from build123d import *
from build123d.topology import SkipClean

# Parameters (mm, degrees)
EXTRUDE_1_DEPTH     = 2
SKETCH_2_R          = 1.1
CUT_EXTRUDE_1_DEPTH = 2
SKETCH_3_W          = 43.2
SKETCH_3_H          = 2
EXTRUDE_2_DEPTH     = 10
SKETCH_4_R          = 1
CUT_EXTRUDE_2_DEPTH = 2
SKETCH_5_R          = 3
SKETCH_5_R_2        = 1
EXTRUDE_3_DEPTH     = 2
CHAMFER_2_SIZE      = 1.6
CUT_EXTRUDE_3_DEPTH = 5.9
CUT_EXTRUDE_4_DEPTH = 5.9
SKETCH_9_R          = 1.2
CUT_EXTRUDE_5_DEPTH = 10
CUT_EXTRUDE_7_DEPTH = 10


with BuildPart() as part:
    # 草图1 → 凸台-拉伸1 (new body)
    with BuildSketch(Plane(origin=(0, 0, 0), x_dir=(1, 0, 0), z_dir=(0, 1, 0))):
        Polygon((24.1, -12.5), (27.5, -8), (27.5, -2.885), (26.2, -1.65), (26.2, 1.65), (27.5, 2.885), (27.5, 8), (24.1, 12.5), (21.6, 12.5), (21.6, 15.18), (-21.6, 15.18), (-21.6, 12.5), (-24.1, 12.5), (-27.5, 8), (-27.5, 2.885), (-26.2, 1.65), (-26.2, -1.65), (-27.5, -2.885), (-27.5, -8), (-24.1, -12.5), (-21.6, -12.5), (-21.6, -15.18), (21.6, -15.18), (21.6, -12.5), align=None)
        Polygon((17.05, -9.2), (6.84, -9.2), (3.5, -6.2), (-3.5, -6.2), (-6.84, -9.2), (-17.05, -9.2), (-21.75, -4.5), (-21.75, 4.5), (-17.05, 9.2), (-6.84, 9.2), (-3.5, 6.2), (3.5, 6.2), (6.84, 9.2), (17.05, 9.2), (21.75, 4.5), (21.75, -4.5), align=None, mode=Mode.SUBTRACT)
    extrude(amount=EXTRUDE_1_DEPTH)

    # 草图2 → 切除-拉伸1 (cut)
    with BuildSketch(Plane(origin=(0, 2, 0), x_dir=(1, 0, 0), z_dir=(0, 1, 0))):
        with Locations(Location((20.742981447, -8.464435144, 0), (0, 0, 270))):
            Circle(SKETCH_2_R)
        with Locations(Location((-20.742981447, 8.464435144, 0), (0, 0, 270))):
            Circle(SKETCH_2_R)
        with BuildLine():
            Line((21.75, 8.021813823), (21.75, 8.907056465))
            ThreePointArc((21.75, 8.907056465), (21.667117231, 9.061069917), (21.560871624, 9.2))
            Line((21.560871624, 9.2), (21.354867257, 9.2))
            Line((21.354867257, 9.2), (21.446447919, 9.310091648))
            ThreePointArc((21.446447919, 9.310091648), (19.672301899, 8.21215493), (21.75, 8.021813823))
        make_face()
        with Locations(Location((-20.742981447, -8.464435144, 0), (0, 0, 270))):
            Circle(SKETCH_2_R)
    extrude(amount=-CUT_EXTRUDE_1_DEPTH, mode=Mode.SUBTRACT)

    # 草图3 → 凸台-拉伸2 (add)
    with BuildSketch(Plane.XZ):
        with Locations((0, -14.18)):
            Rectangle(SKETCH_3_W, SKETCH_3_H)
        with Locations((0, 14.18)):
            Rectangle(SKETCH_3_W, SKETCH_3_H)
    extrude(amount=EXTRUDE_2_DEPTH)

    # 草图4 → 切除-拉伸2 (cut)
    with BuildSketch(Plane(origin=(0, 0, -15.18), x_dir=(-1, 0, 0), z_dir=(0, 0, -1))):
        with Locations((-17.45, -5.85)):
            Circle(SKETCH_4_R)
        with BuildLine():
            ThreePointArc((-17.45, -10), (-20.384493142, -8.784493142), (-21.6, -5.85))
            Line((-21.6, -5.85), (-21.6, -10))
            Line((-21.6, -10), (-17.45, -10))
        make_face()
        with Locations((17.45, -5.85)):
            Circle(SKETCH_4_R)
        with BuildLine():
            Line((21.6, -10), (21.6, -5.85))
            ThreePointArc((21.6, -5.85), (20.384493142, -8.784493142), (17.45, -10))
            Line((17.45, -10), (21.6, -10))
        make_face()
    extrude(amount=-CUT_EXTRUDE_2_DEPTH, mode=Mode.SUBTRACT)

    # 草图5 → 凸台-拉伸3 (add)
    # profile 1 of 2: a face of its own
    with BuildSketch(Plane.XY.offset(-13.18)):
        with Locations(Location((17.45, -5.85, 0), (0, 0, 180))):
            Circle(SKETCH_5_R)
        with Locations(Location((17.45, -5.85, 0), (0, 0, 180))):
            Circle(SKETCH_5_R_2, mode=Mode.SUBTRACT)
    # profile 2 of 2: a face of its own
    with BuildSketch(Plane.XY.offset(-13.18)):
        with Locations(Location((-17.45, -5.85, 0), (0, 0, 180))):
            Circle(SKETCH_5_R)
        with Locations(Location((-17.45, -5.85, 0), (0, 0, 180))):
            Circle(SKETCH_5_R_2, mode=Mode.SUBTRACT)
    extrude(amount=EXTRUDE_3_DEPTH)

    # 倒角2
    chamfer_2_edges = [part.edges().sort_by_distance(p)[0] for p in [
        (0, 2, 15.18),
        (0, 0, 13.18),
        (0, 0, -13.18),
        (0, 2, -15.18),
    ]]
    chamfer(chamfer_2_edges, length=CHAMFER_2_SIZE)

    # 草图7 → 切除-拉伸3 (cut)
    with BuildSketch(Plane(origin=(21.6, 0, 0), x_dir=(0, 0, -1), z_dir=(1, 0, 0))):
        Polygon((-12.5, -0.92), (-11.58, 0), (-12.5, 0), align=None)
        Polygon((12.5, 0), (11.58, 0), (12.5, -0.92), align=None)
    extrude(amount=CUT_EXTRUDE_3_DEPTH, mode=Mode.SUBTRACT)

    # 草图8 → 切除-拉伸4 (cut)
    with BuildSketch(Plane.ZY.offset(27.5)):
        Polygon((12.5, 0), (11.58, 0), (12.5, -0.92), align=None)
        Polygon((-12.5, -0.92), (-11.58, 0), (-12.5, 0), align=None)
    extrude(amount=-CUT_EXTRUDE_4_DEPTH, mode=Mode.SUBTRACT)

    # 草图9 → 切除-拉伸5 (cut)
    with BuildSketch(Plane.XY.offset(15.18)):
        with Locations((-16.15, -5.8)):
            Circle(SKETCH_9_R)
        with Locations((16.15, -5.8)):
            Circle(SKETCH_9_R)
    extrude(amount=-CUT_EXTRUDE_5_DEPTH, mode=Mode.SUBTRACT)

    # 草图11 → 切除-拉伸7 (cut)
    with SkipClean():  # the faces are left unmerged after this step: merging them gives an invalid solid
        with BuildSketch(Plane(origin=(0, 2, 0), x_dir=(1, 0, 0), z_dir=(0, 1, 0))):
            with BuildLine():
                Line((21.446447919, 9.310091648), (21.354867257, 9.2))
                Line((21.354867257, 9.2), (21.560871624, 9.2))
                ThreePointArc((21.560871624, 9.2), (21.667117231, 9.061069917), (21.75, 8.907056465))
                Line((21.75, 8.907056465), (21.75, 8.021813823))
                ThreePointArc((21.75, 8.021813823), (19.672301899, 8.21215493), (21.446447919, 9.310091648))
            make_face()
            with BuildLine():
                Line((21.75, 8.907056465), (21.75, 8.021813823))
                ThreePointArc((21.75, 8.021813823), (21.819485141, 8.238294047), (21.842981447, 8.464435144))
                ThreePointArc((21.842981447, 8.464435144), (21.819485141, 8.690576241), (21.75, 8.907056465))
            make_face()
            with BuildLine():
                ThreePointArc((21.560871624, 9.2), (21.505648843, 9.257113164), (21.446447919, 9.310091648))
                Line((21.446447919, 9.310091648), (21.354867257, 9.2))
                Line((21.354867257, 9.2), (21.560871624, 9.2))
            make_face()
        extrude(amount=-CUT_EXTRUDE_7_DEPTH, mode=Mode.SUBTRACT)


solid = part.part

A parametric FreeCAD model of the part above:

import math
import FreeCAD as App
import Part
import Sketcher

V = App.Vector


def edges_at(feature, points):
    """Names of the edges that pass closest to the given points."""
    edges = feature.Shape.Edges
    near = lambda p: min(range(len(edges)), key=lambda i: edges[i].distToShape(Part.Vertex(*p))[0])
    return sorted({f"Edge{near(p) + 1}" for p in points})

doc = App.newDocument("Part")
body = doc.addObject("PartDesign::Body", "Body")

# Sketch on XZ plane
sketch1 = doc.addObject("Sketcher::SketchObject", "Sketch")
body.addObject(sketch1)
sketch1.AttachmentSupport = (doc.XZ_Plane, [""])
sketch1.MapMode = "FlatFace"
sketch1.addGeometry([
    Part.LineSegment(V(24.1, 12.5, 0), V(27.5, 8, 0)),  # 0
    Part.LineSegment(V(27.5, 8, 0), V(27.5, 2.9, 0)),  # 1
    Part.LineSegment(V(27.5, 2.9, 0), V(26.2, 1.6, 0)),  # 2
    Part.LineSegment(V(26.2, 1.6, 0), V(26.2, -1.6, 0)),  # 3
    Part.LineSegment(V(26.2, -1.6, 0), V(27.5, -2.9, 0)),  # 4
    Part.LineSegment(V(27.5, -2.9, 0), V(27.5, -8, 0)),  # 5
    Part.LineSegment(V(27.5, -8, 0), V(24.1, -12.5, 0)),  # 6
    Part.LineSegment(V(24.1, -12.5, 0), V(21.6, -12.5, 0)),  # 7
    Part.LineSegment(V(21.6, -12.5, 0), V(21.6, -15.2, 0)),  # 8
    Part.LineSegment(V(21.6, -15.2, 0), V(-21.6, -15.2, 0)),  # 9
    Part.LineSegment(V(-21.6, -15.2, 0), V(-21.6, -12.5, 0)),  # 10
    Part.LineSegment(V(-21.6, -12.5, 0), V(-24.1, -12.5, 0)),  # 11
    Part.LineSegment(V(-24.1, -12.5, 0), V(-27.5, -8, 0)),  # 12
    Part.LineSegment(V(-27.5, -8, 0), V(-27.5, -2.9, 0)),  # 13
    Part.LineSegment(V(-27.5, -2.9, 0), V(-26.2, -1.6, 0)),  # 14
    Part.LineSegment(V(-26.2, -1.6, 0), V(-26.2, 1.6, 0)),  # 15
    Part.LineSegment(V(-26.2, 1.6, 0), V(-27.5, 2.9, 0)),  # 16
    Part.LineSegment(V(-27.5, 2.9, 0), V(-27.5, 8, 0)),  # 17
    Part.LineSegment(V(-27.5, 8, 0), V(-24.1, 12.5, 0)),  # 18
    Part.LineSegment(V(-24.1, 12.5, 0), V(-21.6, 12.5, 0)),  # 19
    Part.LineSegment(V(-21.6, 12.5, 0), V(-21.6, 15.2, 0)),  # 20
    Part.LineSegment(V(-21.6, 15.2, 0), V(21.6, 15.2, 0)),  # 21
    Part.LineSegment(V(21.6, 15.2, 0), V(21.6, 12.5, 0)),  # 22
    Part.LineSegment(V(21.6, 12.5, 0), V(24.1, 12.5, 0)),  # 23
    Part.LineSegment(V(21.8, 4.5, 0), V(17.1, 9.2, 0)),  # 24
    Part.LineSegment(V(17.1, 9.2, 0), V(6.8, 9.2, 0)),  # 25
    Part.LineSegment(V(6.8, 9.2, 0), V(3.5, 6.2, 0)),  # 26
    Part.LineSegment(V(3.5, 6.2, 0), V(-3.5, 6.2, 0)),  # 27
    Part.LineSegment(V(-3.5, 6.2, 0), V(-6.8, 9.2, 0)),  # 28
    Part.LineSegment(V(-6.8, 9.2, 0), V(-17.1, 9.2, 0)),  # 29
    Part.LineSegment(V(-17.1, 9.2, 0), V(-21.8, 4.5, 0)),  # 30
    Part.LineSegment(V(-21.8, 4.5, 0), V(-21.8, -4.5, 0)),  # 31
    Part.LineSegment(V(-21.8, -4.5, 0), V(-17.1, -9.2, 0)),  # 32
    Part.LineSegment(V(-17.1, -9.2, 0), V(-6.8, -9.2, 0)),  # 33
    Part.LineSegment(V(-6.8, -9.2, 0), V(-3.5, -6.2, 0)),  # 34
    Part.LineSegment(V(-3.5, -6.2, 0), V(3.5, -6.2, 0)),  # 35
    Part.LineSegment(V(3.5, -6.2, 0), V(6.8, -9.2, 0)),  # 36
    Part.LineSegment(V(6.8, -9.2, 0), V(17.1, -9.2, 0)),  # 37
    Part.LineSegment(V(17.1, -9.2, 0), V(21.8, -4.5, 0)),  # 38
    Part.LineSegment(V(21.8, -4.5, 0), V(21.8, 4.5, 0)),  # 39
], False)
sketch1.addConstraint([
    Sketcher.Constraint("Coincident", 0, 2, 1, 1),
    Sketcher.Constraint("Coincident", 1, 2, 2, 1),
    Sketcher.Constraint("Coincident", 2, 2, 3, 1),
    Sketcher.Constraint("Coincident", 3, 2, 4, 1),
    Sketcher.Constraint("Coincident", 4, 2, 5, 1),
    Sketcher.Constraint("Coincident", 5, 2, 6, 1),
    Sketcher.Constraint("Coincident", 6, 2, 7, 1),
    Sketcher.Constraint("Coincident", 7, 2, 8, 1),
    Sketcher.Constraint("Coincident", 8, 2, 9, 1),
    Sketcher.Constraint("Coincident", 9, 2, 10, 1),
    Sketcher.Constraint("Coincident", 10, 2, 11, 1),
    Sketcher.Constraint("Coincident", 11, 2, 12, 1),
    Sketcher.Constraint("Coincident", 12, 2, 13, 1),
    Sketcher.Constraint("Coincident", 13, 2, 14, 1),
    Sketcher.Constraint("Coincident", 14, 2, 15, 1),
    Sketcher.Constraint("Coincident", 15, 2, 16, 1),
    Sketcher.Constraint("Coincident", 16, 2, 17, 1),
    Sketcher.Constraint("Coincident", 17, 2, 18, 1),
    Sketcher.Constraint("Coincident", 18, 2, 19, 1),
    Sketcher.Constraint("Coincident", 19, 2, 20, 1),
    Sketcher.Constraint("Coincident", 20, 2, 21, 1),
    Sketcher.Constraint("Coincident", 21, 2, 22, 1),
    Sketcher.Constraint("Coincident", 22, 2, 23, 1),
    Sketcher.Constraint("Coincident", 23, 2, 0, 1),
    Sketcher.Constraint("Coincident", 24, 2, 25, 1),
    Sketcher.Constraint("Coincident", 25, 2, 26, 1),
    Sketcher.Constraint("Coincident", 26, 2, 27, 1),
    Sketcher.Constraint("Coincident", 27, 2, 28, 1),
    Sketcher.Constraint("Coincident", 28, 2, 29, 1),
    Sketcher.Constraint("Coincident", 29, 2, 30, 1),
    Sketcher.Constraint("Coincident", 30, 2, 31, 1),
    Sketcher.Constraint("Coincident", 31, 2, 32, 1),
    Sketcher.Constraint("Coincident", 32, 2, 33, 1),
    Sketcher.Constraint("Coincident", 33, 2, 34, 1),
    Sketcher.Constraint("Coincident", 34, 2, 35, 1),
    Sketcher.Constraint("Coincident", 35, 2, 36, 1),
    Sketcher.Constraint("Coincident", 36, 2, 37, 1),
    Sketcher.Constraint("Coincident", 37, 2, 38, 1),
    Sketcher.Constraint("Coincident", 38, 2, 39, 1),
    Sketcher.Constraint("Coincident", 39, 2, 24, 1),
    Sketcher.Constraint("Vertical", 1),
    Sketcher.Constraint("Vertical", 3),
    Sketcher.Constraint("Vertical", 5),
    Sketcher.Constraint("Horizontal", 7),
    Sketcher.Constraint("Vertical", 8),
    Sketcher.Constraint("Horizontal", 9),
    Sketcher.Constraint("Vertical", 10),
    Sketcher.Constraint("Horizontal", 11),
    Sketcher.Constraint("Vertical", 13),
    Sketcher.Constraint("Vertical", 15),
    Sketcher.Constraint("Vertical", 17),
    Sketcher.Constraint("Horizontal", 19),
    Sketcher.Constraint("Vertical", 20),
    Sketcher.Constraint("Horizontal", 21),
    Sketcher.Constraint("Vertical", 22),
    Sketcher.Constraint("Horizontal", 23),
    Sketcher.Constraint("Horizontal", 25),
    Sketcher.Constraint("Horizontal", 27),
    Sketcher.Constraint("Horizontal", 29),
    Sketcher.Constraint("Vertical", 31),
    Sketcher.Constraint("Horizontal", 33),
    Sketcher.Constraint("Horizontal", 35),
    Sketcher.Constraint("Horizontal", 37),
    Sketcher.Constraint("Vertical", 39),
    Sketcher.Constraint("Symmetric", 0, 2, 12, 2, -1, 1),
    Sketcher.Constraint("Symmetric", 2, 2, 14, 2, -1, 1),
    Sketcher.Constraint("Symmetric", 4, 2, 16, 2, -1, 1),
    Sketcher.Constraint("Symmetric", 6, 2, 18, 2, -1, 1),
    Sketcher.Constraint("Symmetric", 8, 2, 20, 2, -1, 1),
    Sketcher.Constraint("Symmetric", 10, 2, 22, 2, -1, 1),
    Sketcher.Constraint("Symmetric", 24, 2, 32, 2, -1, 1),
    Sketcher.Constraint("Symmetric", 26, 2, 34, 2, -1, 1),
    Sketcher.Constraint("Symmetric", 28, 2, 36, 2, -1, 1),
    Sketcher.Constraint("Symmetric", 30, 2, 38, 2, -1, 1),
    Sketcher.Constraint("Symmetric", 7, 2, 10, 2, -2),
    Sketcher.Constraint("Symmetric", 5, 2, 12, 2, -2),
    Sketcher.Constraint("Symmetric", 25, 2, 28, 2, -2),
    Sketcher.Constraint("Parallel", 0, 12),
    Sketcher.Constraint("Parallel", 2, 14),
    Sketcher.Constraint("Parallel", 4, 16),
    Sketcher.Constraint("Parallel", 6, 18),
    Sketcher.Constraint("Perpendicular", 24, 30),
    Sketcher.Constraint("Perpendicular", 30, 32),
    Sketcher.Constraint("Parallel", 26, 34),
    Sketcher.Constraint("Parallel", 28, 36),
    Sketcher.Constraint("Perpendicular", 32, 38),
    Sketcher.Constraint("Horizontal", 4, 2, 13, 2),
    Sketcher.Constraint("Horizontal", 3, 2, 14, 2),
    Sketcher.Constraint("Horizontal", 31, 2, 38, 2),
    Sketcher.Constraint("Vertical", 11, 2, 18, 2),
    Sketcher.Constraint("Vertical", 29, 2, 32, 2),
    Sketcher.Constraint("Vertical", 27, 2, 34, 2),
    Sketcher.Constraint("DistanceX", 27, 2, 27, 1, 7.0),
    Sketcher.Constraint("DistanceY", 31, 2, 31, 1, 9.0),
    Sketcher.Constraint("DistanceX", 7, 2, 7, 1, 2.5),
    Sketcher.Constraint("DistanceX", 9, 2, 9, 1, 43.2),
    Sketcher.Constraint("DistanceY", 3, 2, 3, 1, 3.3),
    Sketcher.Constraint("DistanceY", -1, 1, 0, 2, 8.0),
    Sketcher.Constraint("DistanceY", 26, 2, 25, 2, 3.0),
    Sketcher.Constraint("DistanceY", 10, 2, 31, 2, 8.0),
    Sketcher.Constraint("DistanceX", 25, 2, 25, 1, 10.21),
    Sketcher.Constraint("DistanceY", 8, 2, 8, 1, 2.68),
    Sketcher.Constraint("DistanceX", -1, 1, 0, 2, 27.5),
    Sketcher.Constraint("DistanceX", -1, 1, 2, 2, 26.2),
    Sketcher.Constraint("DistanceY", -1, 1, 24, 2, 9.2),
    Sketcher.Constraint("DistanceY", 1, 2, 1, 1, 5.115),
    Sketcher.Constraint("DistanceX", -1, 1, 24, 2, 17.05),
])
pad1 = doc.addObject("PartDesign::Pad", "Pad")
body.addObject(pad1)
pad1.Profile = sketch1
pad1.Length = 2
pad1.Reversed = True

# Sketch on XZ plane
sketch2 = doc.addObject("Sketcher::SketchObject", "Sketch001")
body.addObject(sketch2)
sketch2.AttachmentSupport = (doc.XZ_Plane, [""])
sketch2.MapMode = "FlatFace"
sketch2.AttachmentOffset = App.Placement(V(0, 0, -2), App.Rotation())
sketch2.addGeometry([
    Part.Circle(V(20.74, 8.46, 0), V(0, 0, 1), 1.1),  # 0
    Part.Circle(V(-20.74, -8.46, 0), V(0, 0, 1), 1.1),  # 1
    Part.LineSegment(V(21.75, -8.02, 0), V(21.75, -8.91, 0)),  # 2
    Part.ArcOfCircle(Part.Circle(V(20.74, -8.46, 0), V(0, 0, 1), 1.1), math.radians(-41.97), math.radians(-23.73)),  # 3
    Part.LineSegment(V(21.56, -9.2, 0), V(21.35, -9.2, 0)),  # 4
    Part.LineSegment(V(21.35, -9.2, 0), V(21.45, -9.31, 0)),  # 5
    Part.ArcOfCircle(Part.Circle(V(20.74, -8.46, 0), V(0, 0, 1), 1.1), math.radians(24), math.radians(310)),  # 6
    Part.Circle(V(-20.74, 8.46, 0), V(0, 0, 1), 1.1),  # 7
], False)
sketch2.addConstraint([
    Sketcher.Constraint("Coincident", 2, 2, 3, 2),
    Sketcher.Constraint("Coincident", 3, 1, 4, 1),
    Sketcher.Constraint("Coincident", 4, 2, 5, 1),
    Sketcher.Constraint("Coincident", 5, 2, 6, 2),
    Sketcher.Constraint("Coincident", 6, 1, 2, 1),
    Sketcher.Constraint("Vertical", 2),
    Sketcher.Constraint("Horizontal", 4),
    Sketcher.Constraint("Coincident", 6, 3, 3, 3),
    Sketcher.Constraint("Equal", 0, 1),
    Sketcher.Constraint("Equal", 1, 3),
    Sketcher.Constraint("Equal", 3, 6),
    Sketcher.Constraint("Equal", 6, 7),
    Sketcher.Constraint("Symmetric", 0, 3, 1, 3, -1, 1),
    Sketcher.Constraint("Symmetric", 3, 3, 7, 3, -1, 1),
    Sketcher.Constraint("Symmetric", 1, 3, 3, 3, -2),
    Sketcher.Constraint("Diameter", 0, 2.2),
    Sketcher.Constraint("DistanceY", 3, 1, -1, 1, 9.2),
    Sketcher.Constraint("DistanceX", -1, 1, 2, 2, 21.75),
    Sketcher.Constraint("DistanceX", 4, 2, 4, 1, 0.206004),
    Sketcher.Constraint("DistanceY", 2, 2, 2, 1, 0.885243),
    Sketcher.Constraint("DistanceX", -1, 1, 3, 1, 21.560872),
    Sketcher.Constraint("DistanceY", 5, 2, -1, 1, 9.310092),
])
pocket1 = doc.addObject("PartDesign::Pocket", "Pocket")
body.addObject(pocket1)
pocket1.Profile = sketch2
pocket1.Length = 2
pocket1.Reversed = True

# Sketch on XZ plane
sketch3 = doc.addObject("Sketcher::SketchObject", "Sketch002")
body.addObject(sketch3)
sketch3.AttachmentSupport = (doc.XZ_Plane, [""])
sketch3.MapMode = "FlatFace"
sketch3.addGeometry([
    Part.LineSegment(V(-21.6, -13.2, 0), V(-21.6, -15.2, 0)),  # 0
    Part.LineSegment(V(-21.6, -15.2, 0), V(21.6, -15.2, 0)),  # 1
    Part.LineSegment(V(21.6, -15.2, 0), V(21.6, -13.2, 0)),  # 2
    Part.LineSegment(V(21.6, -13.2, 0), V(-21.6, -13.2, 0)),  # 3
    Part.LineSegment(V(-21.6, 15.2, 0), V(-21.6, 13.2, 0)),  # 4
    Part.LineSegment(V(-21.6, 13.2, 0), V(21.6, 13.2, 0)),  # 5
    Part.LineSegment(V(21.6, 13.2, 0), V(21.6, 15.2, 0)),  # 6
    Part.LineSegment(V(21.6, 15.2, 0), V(-21.6, 15.2, 0)),  # 7
], False)
sketch3.addConstraint([
    Sketcher.Constraint("Coincident", 0, 2, 1, 1),
    Sketcher.Constraint("Coincident", 1, 2, 2, 1),
    Sketcher.Constraint("Coincident", 2, 2, 3, 1),
    Sketcher.Constraint("Coincident", 3, 2, 0, 1),
    Sketcher.Constraint("Coincident", 4, 2, 5, 1),
    Sketcher.Constraint("Coincident", 5, 2, 6, 1),
    Sketcher.Constraint("Coincident", 6, 2, 7, 1),
    Sketcher.Constraint("Coincident", 7, 2, 4, 1),
    Sketcher.Constraint("Vertical", 0),
    Sketcher.Constraint("Horizontal", 1),
    Sketcher.Constraint("Vertical", 2),
    Sketcher.Constraint("Horizontal", 3),
    Sketcher.Constraint("Vertical", 4),
    Sketcher.Constraint("Horizontal", 5),
    Sketcher.Constraint("Vertical", 6),
    Sketcher.Constraint("Horizontal", 7),
    Sketcher.Constraint("Symmetric", 2, 2, 4, 2, -1, 1),
    Sketcher.Constraint("Symmetric", 0, 2, 6, 2, -1, 1),
    Sketcher.Constraint("Vertical", 3, 2, 4, 2),
    Sketcher.Constraint("DistanceY", 0, 2, 0, 1, 2.0),
    Sketcher.Constraint("DistanceX", 1, 1, 1, 2, 43.2),
    Sketcher.Constraint("DistanceY", 0, 2, -1, 1, 15.18),
])
pad2 = doc.addObject("PartDesign::Pad", "Pad001")
body.addObject(pad2)
pad2.Profile = sketch3
pad2.Length = 10

# Sketch on XY plane
sketch4 = doc.addObject("Sketcher::SketchObject", "Sketch003")
body.addObject(sketch4)
sketch4.AttachmentSupport = (doc.XY_Plane, [""])
sketch4.MapMode = "FlatFace"
sketch4.AttachmentOffset = App.Placement(V(0, 0, -15.18), App.Rotation())
sketch4.addGeometry([
    Part.Circle(V(17.4, -5.8, 0), V(0, 0, 1), 1),  # 0
    Part.ArcOfCircle(Part.Circle(V(17.4, -5.8, 0), V(0, 0, 1), 4.2), math.radians(-90), math.radians(0)),  # 1
    Part.LineSegment(V(21.6, -5.8, 0), V(21.6, -10, 0)),  # 2
    Part.LineSegment(V(21.6, -10, 0), V(17.4, -10, 0)),  # 3
    Part.Circle(V(-17.4, -5.8, 0), V(0, 0, 1), 1),  # 4
    Part.LineSegment(V(-21.6, -10, 0), V(-21.6, -5.8, 0)),  # 5
    Part.ArcOfCircle(Part.Circle(V(-17.4, -5.8, 0), V(0, 0, 1), 4.2), math.radians(180), math.radians(270)),  # 6
    Part.LineSegment(V(-17.4, -10, 0), V(-21.6, -10, 0)),  # 7
], False)
sketch4.addConstraint([
    Sketcher.Constraint("Tangent", 1, 2, 2, 1),
    Sketcher.Constraint("Coincident", 2, 2, 3, 1),
    Sketcher.Constraint("Tangent", 3, 2, 1, 1),
    Sketcher.Constraint("Tangent", 5, 2, 6, 1),
    Sketcher.Constraint("Tangent", 6, 2, 7, 1),
    Sketcher.Constraint("Coincident", 7, 2, 5, 1),
    Sketcher.Constraint("Vertical", 2),
    Sketcher.Constraint("Horizontal", 3),
    Sketcher.Constraint("Vertical", 5),
    Sketcher.Constraint("Horizontal", 7),
    Sketcher.Constraint("Coincident", 1, 3, 0, 3),
    Sketcher.Constraint("Coincident", 6, 3, 4, 3),
    Sketcher.Constraint("Equal", 0, 4),
    Sketcher.Constraint("Equal", 1, 6),
    Sketcher.Constraint("Symmetric", 0, 3, 4, 3, -2),
    Sketcher.Constraint("Diameter", 0, 2.0),
    Sketcher.Constraint("Radius", 1, 4.15),
    Sketcher.Constraint("DistanceY", 2, 2, -1, 1, 10.0),
    Sketcher.Constraint("DistanceX", -1, 1, 1, 2, 21.6),
])
pocket2 = doc.addObject("PartDesign::Pocket", "Pocket001")
body.addObject(pocket2)
pocket2.Profile = sketch4
pocket2.Length = 2
pocket2.Reversed = True

# Sketch on XY plane
sketch5 = doc.addObject("Sketcher::SketchObject", "Sketch004")
body.addObject(sketch5)
sketch5.AttachmentSupport = (doc.XY_Plane, [""])
sketch5.MapMode = "FlatFace"
sketch5.AttachmentOffset = App.Placement(V(0, 0, -13.18), App.Rotation())
sketch5.addGeometry([
    Part.Circle(V(17.4, -5.8, 0), V(0, 0, 1), 3),
    Part.Circle(V(17.4, -5.8, 0), V(0, 0, 1), 1),
    Part.Circle(V(-17.4, -5.8, 0), V(0, 0, 1), 3),
    Part.Circle(V(-17.4, -5.8, 0), V(0, 0, 1), 1),
], False)
sketch5.addConstraint([
    Sketcher.Constraint("Coincident", 1, 3, 0, 3),
    Sketcher.Constraint("Coincident", 3, 3, 2, 3),
    Sketcher.Constraint("Equal", 0, 2),
    Sketcher.Constraint("Equal", 1, 3),
    Sketcher.Constraint("Symmetric", 0, 3, 2, 3, -2),
    Sketcher.Constraint("Diameter", 0, 6.0),
    Sketcher.Constraint("Diameter", 1, 2.0),
    Sketcher.Constraint("DistanceX", 2, 3, 0, 3, 34.9),
    Sketcher.Constraint("DistanceY", 0, 3, -1, 1, 5.85),
])
pad3 = doc.addObject("PartDesign::Pad", "Pad002")
body.addObject(pad3)
pad3.Profile = sketch5
pad3.Length = 2
doc.recompute()

chamfer = doc.addObject("PartDesign::Chamfer", "Chamfer")
body.addObject(chamfer)
chamfer.Base = (pad3, edges_at(pad3, [
    (0, 2, 15.18),
    (0, 0, 13.18),
    (0, 0, -13.18),
    (0, 2, -15.18),
]))
chamfer.Size = 1.6

# Sketch on YZ plane
sketch6 = doc.addObject("Sketcher::SketchObject", "Sketch005")
body.addObject(sketch6)
sketch6.AttachmentSupport = (doc.YZ_Plane, [""])
sketch6.MapMode = "FlatFace"
sketch6.AttachmentOffset = App.Placement(V(0, 0, 21.6), App.Rotation())
sketch6.addGeometry([
    Part.LineSegment(V(-0.9, 12.5, 0), V(0, 11.6, 0)),  # 0
    Part.LineSegment(V(0, 11.6, 0), V(0, 12.5, 0)),  # 1
    Part.LineSegment(V(0, 12.5, 0), V(-0.9, 12.5, 0)),  # 2
    Part.LineSegment(V(0, -12.5, 0), V(0, -11.6, 0)),  # 3
    Part.LineSegment(V(0, -11.6, 0), V(-0.9, -12.5, 0)),  # 4
    Part.LineSegment(V(-0.9, -12.5, 0), V(0, -12.5, 0)),  # 5
], False)
sketch6.addConstraint([
    Sketcher.Constraint("Coincident", 0, 2, 1, 1),
    Sketcher.Constraint("Coincident", 1, 2, 2, 1),
    Sketcher.Constraint("Coincident", 2, 2, 0, 1),
    Sketcher.Constraint("Coincident", 3, 2, 4, 1),
    Sketcher.Constraint("Coincident", 4, 2, 5, 1),
    Sketcher.Constraint("Coincident", 5, 2, 3, 1),
    Sketcher.Constraint("Vertical", 1),
    Sketcher.Constraint("Horizontal", 2),
    Sketcher.Constraint("Vertical", 3),
    Sketcher.Constraint("Horizontal", 5),
    Sketcher.Constraint("Symmetric", 0, 2, 3, 2, -1, 1),
    Sketcher.Constraint("Symmetric", 2, 2, 4, 2, -1),
    Sketcher.Constraint("PointOnObject", 0, 2, -2),
    Sketcher.Constraint("Perpendicular", 0, 4),
    Sketcher.Constraint("DistanceY", 4, 2, 2, 2, 25.0),
    Sketcher.Constraint("DistanceX", 2, 2, 2, 1, 0.92),
])
pocket3 = doc.addObject("PartDesign::Pocket", "Pocket002")
body.addObject(pocket3)
pocket3.Profile = sketch6
pocket3.Length = 5.9
pocket3.Reversed = True

# Sketch on YZ plane
sketch7 = doc.addObject("Sketcher::SketchObject", "Sketch006")
body.addObject(sketch7)
sketch7.AttachmentSupport = (doc.YZ_Plane, [""])
sketch7.MapMode = "FlatFace"
sketch7.AttachmentOffset = App.Placement(V(0, 0, -27.5), App.Rotation())
sketch7.addGeometry([
    Part.LineSegment(V(0, 12.5, 0), V(0, 11.6, 0)),  # 0
    Part.LineSegment(V(0, 11.6, 0), V(-0.9, 12.5, 0)),  # 1
    Part.LineSegment(V(-0.9, 12.5, 0), V(0, 12.5, 0)),  # 2
    Part.LineSegment(V(-0.9, -12.5, 0), V(0, -11.6, 0)),  # 3
    Part.LineSegment(V(0, -11.6, 0), V(0, -12.5, 0)),  # 4
    Part.LineSegment(V(0, -12.5, 0), V(-0.9, -12.5, 0)),  # 5
], False)
sketch7.addConstraint([
    Sketcher.Constraint("Coincident", 0, 2, 1, 1),
    Sketcher.Constraint("Coincident", 1, 2, 2, 1),
    Sketcher.Constraint("Coincident", 2, 2, 0, 1),
    Sketcher.Constraint("Coincident", 3, 2, 4, 1),
    Sketcher.Constraint("Coincident", 4, 2, 5, 1),
    Sketcher.Constraint("Coincident", 5, 2, 3, 1),
    Sketcher.Constraint("Vertical", 0),
    Sketcher.Constraint("Horizontal", 2),
    Sketcher.Constraint("Vertical", 4),
    Sketcher.Constraint("Horizontal", 5),
    Sketcher.Constraint("Symmetric", 0, 2, 3, 2, -1, 1),
    Sketcher.Constraint("Symmetric", 2, 2, 4, 2, -1),
    Sketcher.Constraint("Perpendicular", 1, 3),
    Sketcher.Constraint("Vertical", 1, 2, 5, 2),
    Sketcher.Constraint("DistanceY", 4, 2, 2, 2, 25.0),
    Sketcher.Constraint("DistanceX", 2, 1, 2, 2, 0.92),
])
pocket4 = doc.addObject("PartDesign::Pocket", "Pocket003")
body.addObject(pocket4)
pocket4.Profile = sketch7
pocket4.Length = 5.9
pocket4.Reversed = True

# Sketch on XY plane
sketch8 = doc.addObject("Sketcher::SketchObject", "Sketch007")
body.addObject(sketch8)
sketch8.AttachmentSupport = (doc.XY_Plane, [""])
sketch8.MapMode = "FlatFace"
sketch8.AttachmentOffset = App.Placement(V(0, 0, 15.18), App.Rotation())
sketch8.addGeometry([
    Part.Circle(V(-16.1, -5.8, 0), V(0, 0, 1), 1.2),
    Part.Circle(V(16.1, -5.8, 0), V(0, 0, 1), 1.2),
], False)
sketch8.addConstraint([
    Sketcher.Constraint("Equal", 0, 1),
    Sketcher.Constraint("Symmetric", 0, 3, 1, 3, -2),
    Sketcher.Constraint("Diameter", 0, 2.4),
    Sketcher.Constraint("DistanceY", 0, 3, -1, 1, 5.8),
    Sketcher.Constraint("DistanceX", 0, 3, 1, 3, 32.3),
])
pocket5 = doc.addObject("PartDesign::Pocket", "Pocket004")
body.addObject(pocket5)
pocket5.Profile = sketch8
pocket5.Length = 10

# Sketch on XZ plane
sketch9 = doc.addObject("Sketcher::SketchObject", "Sketch008")
body.addObject(sketch9)
sketch9.AttachmentSupport = (doc.XZ_Plane, [""])
sketch9.MapMode = "FlatFace"
sketch9.AttachmentOffset = App.Placement(V(0, 0, -2), App.Rotation())
sketch9.addGeometry([
    Part.LineSegment(V(21.35, -9.2, 0), V(21.45, -9.31, 0)),  # 0
    Part.ArcOfCircle(Part.Circle(V(20.74, -8.46, 0), V(0, 0, 1), 1.1), math.radians(24), math.radians(310)),  # 1
    Part.LineSegment(V(21.75, -8.02, 0), V(21.75, -8.91, 0)),  # 2
    Part.ArcOfCircle(Part.Circle(V(20.74, -8.46, 0), V(0, 0, 1), 1.1), math.radians(-41.97), math.radians(-23.73)),  # 3
    Part.LineSegment(V(21.56, -9.2, 0), V(21.35, -9.2, 0)),  # 4
    Part.LineSegment(V(21.75, -8.91, 0), V(21.75, -8.02, 0)),  # 5
    Part.ArcOfCircle(Part.Circle(V(20.74, -8.46, 0), V(0, 0, 1), 1.1), math.radians(0), math.radians(24)),  # 6
    Part.ArcOfCircle(Part.Circle(V(20.74, -8.46, 0), V(0, 0, 1), 1.1), math.radians(-24), math.radians(0)),  # 7
    Part.ArcOfCircle(Part.Circle(V(20.74, -8.46, 0), V(0, 0, 1), 1.1), math.radians(-50.24), math.radians(-41.97)),  # 8
    Part.LineSegment(V(21.45, -9.31, 0), V(21.35, -9.2, 0)),  # 9
    Part.LineSegment(V(21.35, -9.2, 0), V(21.56, -9.2, 0)),  # 10
], False)
sketch9.addConstraint([
    Sketcher.Constraint("Coincident", 0, 2, 1, 2),
    Sketcher.Constraint("Coincident", 1, 1, 2, 1),
    Sketcher.Constraint("Coincident", 2, 2, 3, 2),
    Sketcher.Constraint("Coincident", 3, 1, 4, 1),
    Sketcher.Constraint("Coincident", 4, 2, 0, 1),
    Sketcher.Constraint("Coincident", 5, 2, 6, 2),
    Sketcher.Constraint("Tangent", 6, 1, 7, 2),
    Sketcher.Constraint("Coincident", 7, 1, 5, 1),
    Sketcher.Constraint("Coincident", 8, 1, 9, 1),
    Sketcher.Constraint("Coincident", 9, 2, 10, 1),
    Sketcher.Constraint("Coincident", 10, 2, 8, 2),
    Sketcher.Constraint("Vertical", 2),
    Sketcher.Constraint("Horizontal", 4),
    Sketcher.Constraint("Vertical", 5),
    Sketcher.Constraint("Horizontal", 10),
    Sketcher.Constraint("Coincident", 3, 3, 1, 3),
    Sketcher.Constraint("Coincident", 6, 3, 1, 3),
    Sketcher.Constraint("Coincident", 8, 3, 1, 3),
    Sketcher.Constraint("Coincident", 5, 2, 1, 1),
    Sketcher.Constraint("Coincident", 8, 1, 0, 2),
    Sketcher.Constraint("Coincident", 9, 2, 4, 2),
    Sketcher.Constraint("Equal", 1, 3),
    Sketcher.Constraint("Equal", 6, 7),
    Sketcher.Constraint("Horizontal", 8, 3, 6, 1),
    Sketcher.Constraint("Radius", 1, 1.1),
    Sketcher.Constraint("DistanceY", 3, 1, -1, 1, 9.2),
    Sketcher.Constraint("DistanceX", -1, 1, 1, 1, 21.75),
    Sketcher.Constraint("DistanceX", 4, 2, 4, 1, 0.206004),
    Sketcher.Constraint("DistanceY", 2, 2, 2, 1, 0.885243),
    Sketcher.Constraint("DistanceY", 0, 2, -1, 1, 9.310092),
    Sketcher.Constraint("DistanceX", -1, 1, 3, 1, 21.560872),
])
pocket6 = doc.addObject("PartDesign::Pocket", "Pocket005")
body.addObject(pocket6)
pocket6.Profile = sketch9
pocket6.Length = 10
pocket6.Reversed = True

doc.recompute()
